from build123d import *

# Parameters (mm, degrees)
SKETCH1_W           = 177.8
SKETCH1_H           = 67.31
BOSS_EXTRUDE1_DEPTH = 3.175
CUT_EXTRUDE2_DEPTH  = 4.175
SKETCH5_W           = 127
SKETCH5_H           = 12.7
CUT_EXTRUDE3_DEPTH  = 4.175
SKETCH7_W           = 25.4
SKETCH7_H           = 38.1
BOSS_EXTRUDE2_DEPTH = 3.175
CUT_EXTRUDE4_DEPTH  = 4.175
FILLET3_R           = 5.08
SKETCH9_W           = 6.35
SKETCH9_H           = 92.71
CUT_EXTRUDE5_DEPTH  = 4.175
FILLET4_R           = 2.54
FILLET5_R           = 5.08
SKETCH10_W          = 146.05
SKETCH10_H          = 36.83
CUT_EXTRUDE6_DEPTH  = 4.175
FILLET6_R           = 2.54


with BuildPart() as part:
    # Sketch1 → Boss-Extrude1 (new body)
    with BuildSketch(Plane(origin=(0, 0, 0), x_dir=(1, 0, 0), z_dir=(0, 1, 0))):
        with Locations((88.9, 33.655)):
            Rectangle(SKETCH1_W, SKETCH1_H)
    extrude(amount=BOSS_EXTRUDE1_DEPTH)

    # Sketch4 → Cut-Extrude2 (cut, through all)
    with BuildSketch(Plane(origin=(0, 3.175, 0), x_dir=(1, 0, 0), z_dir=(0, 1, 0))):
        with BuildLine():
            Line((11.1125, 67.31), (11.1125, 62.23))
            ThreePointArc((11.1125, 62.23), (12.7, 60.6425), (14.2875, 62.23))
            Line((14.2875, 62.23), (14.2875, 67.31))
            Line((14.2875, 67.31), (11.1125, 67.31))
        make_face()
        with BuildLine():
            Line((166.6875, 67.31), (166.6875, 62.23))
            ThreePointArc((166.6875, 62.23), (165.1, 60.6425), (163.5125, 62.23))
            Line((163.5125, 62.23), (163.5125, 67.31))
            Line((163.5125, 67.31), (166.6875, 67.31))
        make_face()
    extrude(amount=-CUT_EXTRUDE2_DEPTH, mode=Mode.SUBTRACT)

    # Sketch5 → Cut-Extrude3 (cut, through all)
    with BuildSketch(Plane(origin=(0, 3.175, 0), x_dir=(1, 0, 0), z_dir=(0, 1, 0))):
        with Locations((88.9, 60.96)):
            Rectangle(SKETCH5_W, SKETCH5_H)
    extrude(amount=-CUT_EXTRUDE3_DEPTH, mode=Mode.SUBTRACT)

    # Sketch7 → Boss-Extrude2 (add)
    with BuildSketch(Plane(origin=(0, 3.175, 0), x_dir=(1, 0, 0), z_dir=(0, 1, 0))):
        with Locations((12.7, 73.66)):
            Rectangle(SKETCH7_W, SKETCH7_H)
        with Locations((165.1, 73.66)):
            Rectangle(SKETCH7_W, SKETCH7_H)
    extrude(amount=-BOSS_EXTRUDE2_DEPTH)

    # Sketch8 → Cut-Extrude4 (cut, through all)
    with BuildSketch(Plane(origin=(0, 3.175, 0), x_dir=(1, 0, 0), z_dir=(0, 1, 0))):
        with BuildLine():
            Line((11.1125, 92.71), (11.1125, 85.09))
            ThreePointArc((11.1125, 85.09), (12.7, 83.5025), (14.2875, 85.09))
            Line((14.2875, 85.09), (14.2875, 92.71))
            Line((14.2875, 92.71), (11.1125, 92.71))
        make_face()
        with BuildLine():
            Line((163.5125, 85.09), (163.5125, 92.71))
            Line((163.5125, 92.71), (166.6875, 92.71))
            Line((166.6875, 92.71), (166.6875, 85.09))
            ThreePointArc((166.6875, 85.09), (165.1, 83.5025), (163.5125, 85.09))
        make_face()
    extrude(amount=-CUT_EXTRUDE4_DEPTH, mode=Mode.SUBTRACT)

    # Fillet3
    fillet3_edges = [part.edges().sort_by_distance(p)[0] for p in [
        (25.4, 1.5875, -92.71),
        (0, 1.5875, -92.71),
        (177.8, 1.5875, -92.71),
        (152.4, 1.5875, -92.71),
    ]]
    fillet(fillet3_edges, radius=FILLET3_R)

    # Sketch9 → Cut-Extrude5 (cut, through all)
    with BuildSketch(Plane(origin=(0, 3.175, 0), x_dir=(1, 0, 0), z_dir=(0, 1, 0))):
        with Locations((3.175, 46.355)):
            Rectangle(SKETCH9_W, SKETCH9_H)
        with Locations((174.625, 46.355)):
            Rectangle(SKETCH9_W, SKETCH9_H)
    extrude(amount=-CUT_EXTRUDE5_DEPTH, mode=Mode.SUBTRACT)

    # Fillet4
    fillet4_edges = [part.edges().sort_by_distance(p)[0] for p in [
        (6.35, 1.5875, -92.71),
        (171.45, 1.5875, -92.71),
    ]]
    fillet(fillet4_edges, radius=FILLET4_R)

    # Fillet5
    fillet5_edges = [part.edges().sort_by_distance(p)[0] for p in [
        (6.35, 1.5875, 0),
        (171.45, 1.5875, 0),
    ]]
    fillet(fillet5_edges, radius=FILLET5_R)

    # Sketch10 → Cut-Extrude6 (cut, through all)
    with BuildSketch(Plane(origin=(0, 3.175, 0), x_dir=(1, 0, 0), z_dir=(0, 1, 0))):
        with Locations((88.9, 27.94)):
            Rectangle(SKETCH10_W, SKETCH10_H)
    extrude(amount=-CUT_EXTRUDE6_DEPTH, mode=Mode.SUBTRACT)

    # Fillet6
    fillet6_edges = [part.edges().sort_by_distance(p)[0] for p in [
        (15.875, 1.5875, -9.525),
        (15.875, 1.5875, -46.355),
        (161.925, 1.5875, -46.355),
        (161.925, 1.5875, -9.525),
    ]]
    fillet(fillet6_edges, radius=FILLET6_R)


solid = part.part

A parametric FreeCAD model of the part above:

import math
import FreeCAD as App
import Part
import Sketcher
from FreeCAD import Vector
Q = App.Units.Quantity


def edges_at(feature, points):
    """Names of the edges that pass closest to the given points."""
    edges = feature.Shape.Edges
    near = lambda p: min(range(len(edges)), key=lambda i: edges[i].distToShape(Part.Vertex(*p))[0])
    return sorted({f"Edge{near(p) + 1}" for p in points})

doc = App.newDocument("Part")
body = doc.addObject("PartDesign::Body", "Body")

# Sketch on XZ plane
sketch1 = body.newObject("Sketcher::SketchObject", "Sketch")
sketch1.AttachmentSupport = (doc.getObject("XZ_Plane"), [""])
sketch1.MapMode = "FlatFace"
sketch1.addGeometry([
    Part.LineSegment(Vector(0, -67, 0), Vector(0, 0, 0)),
    Part.LineSegment(Vector(0, 0, 0), Vector(178, 0, 0)),
    Part.LineSegment(Vector(178, 0, 0), Vector(178, -67, 0)),
    Part.LineSegment(Vector(178, -67, 0), Vector(0, -67, 0)),
], False)
sketch1.addConstraint([
    Sketcher.Constraint("Coincident", 0, 2, 1, 1),
    Sketcher.Constraint("Coincident", 1, 2, 2, 1),
    Sketcher.Constraint("Coincident", 2, 2, 3, 1),
    Sketcher.Constraint("Coincident", 3, 2, 0, 1),
    Sketcher.Constraint("Vertical", 0),
    Sketcher.Constraint("Horizontal", 1),
    Sketcher.Constraint("Vertical", 2),
    Sketcher.Constraint("Horizontal", 3),
    Sketcher.Constraint("Coincident", 0, 2, -1, 1),
    Sketcher.Constraint("DistanceX", 1, 1, 1, 2, Q("7 in")),
    Sketcher.Constraint("DistanceY", 0, 1, 0, 2, Q("2.65 in")),
])
pad1 = body.newObject("PartDesign::Pad", "Pad")
pad1.Profile = sketch1
pad1.Length = Q("0.125 in")
pad1.Reversed = True

# Sketch on XZ plane
sketch2 = body.newObject("Sketcher::SketchObject", "Sketch001")
sketch2.AttachmentSupport = (doc.getObject("XZ_Plane"), [""])
sketch2.MapMode = "FlatFace"
sketch2.AttachmentOffset = App.Placement(Vector(0, 0, -0.125 * 25.4), App.Rotation())
sketch2.addGeometry([
    Part.LineSegment(Vector(11.1, -67.3, 0), Vector(11.1, -62.2, 0)),  # 0
    Part.ArcOfCircle(Part.Circle(Vector(12.7, -62.2, 0), Vector(0, 0, 1), 1.6), math.radians(0), math.radians(180)),  # 1
    Part.LineSegment(Vector(14.3, -62.2, 0), Vector(14.3, -67.3, 0)),  # 2
    Part.LineSegment(Vector(14.3, -67.3, 0), Vector(11.1, -67.3, 0)),  # 3
    Part.LineSegment(Vector(166.7, -62.2, 0), Vector(166.7, -67.3, 0)),  # 4
    Part.LineSegment(Vector(166.7, -67.3, 0), Vector(163.5, -67.3, 0)),  # 5
    Part.LineSegment(Vector(163.5, -67.3, 0), Vector(163.5, -62.2, 0)),  # 6
    Part.ArcOfCircle(Part.Circle(Vector(165.1, -62.2, 0), Vector(0, 0, 1), 1.6), math.radians(0), math.radians(180)),  # 7
], False)
sketch2.addConstraint([
    Sketcher.Constraint("Tangent", 0, 2, 1, 2),
    Sketcher.Constraint("Tangent", 1, 1, 2, 1),
    Sketcher.Constraint("Coincident", 2, 2, 3, 1),
    Sketcher.Constraint("Coincident", 3, 2, 0, 1),
    Sketcher.Constraint("Coincident", 4, 2, 5, 1),
    Sketcher.Constraint("Coincident", 5, 2, 6, 1),
    Sketcher.Constraint("Tangent", 6, 2, 7, 2),
    Sketcher.Constraint("Tangent", 7, 1, 4, 1),
    Sketcher.Constraint("Vertical", 0),
    Sketcher.Constraint("Vertical", 2),
    Sketcher.Constraint("Horizontal", 3),
    Sketcher.Constraint("Vertical", 4),
    Sketcher.Constraint("Horizontal", 5),
    Sketcher.Constraint("Vertical", 6),
    Sketcher.Constraint("Equal", 1, 7),
    Sketcher.Constraint("Horizontal", 1, 3, 7, 3),
    Sketcher.Constraint("Horizontal", 3, 2, 4, 2),
    Sketcher.Constraint("DistanceY", 0, 1, 0, 2, Q("0.2 in")),
    Sketcher.Constraint("Radius", 1, Q("0.0625 in")),
    Sketcher.Constraint("DistanceX", 1, 3, 7, 3, Q("6 in")),
    Sketcher.Constraint("DistanceX", -1, 1, 1, 3, Q("0.5 in")),
    Sketcher.Constraint("DistanceY", 1, 3, -1, 1, Q("2.45 in")),
])
pocket1 = body.newObject("PartDesign::Pocket", "Pocket")
pocket1.Profile = sketch2
pocket1.Type = "ThroughAll"
pocket1.Reversed = True

# Sketch on XZ plane
sketch3 = body.newObject("Sketcher::SketchObject", "Sketch002")
sketch3.AttachmentSupport = (doc.getObject("XZ_Plane"), [""])
sketch3.MapMode = "FlatFace"
sketch3.AttachmentOffset = App.Placement(Vector(0, 0, -0.125 * 25.4), App.Rotation())
sketch3.addGeometry([
    Part.LineSegment(Vector(25, -67, 0), Vector(25, -55, 0)),
    Part.LineSegment(Vector(25, -55, 0), Vector(152, -55, 0)),
    Part.LineSegment(Vector(152, -55, 0), Vector(152, -67, 0)),
    Part.LineSegment(Vector(152, -67, 0), Vector(25, -67, 0)),
], False)
sketch3.addConstraint([
    Sketcher.Constraint("Coincident", 0, 2, 1, 1),
    Sketcher.Constraint("Coincident", 1, 2, 2, 1),
    Sketcher.Constraint("Coincident", 2, 2, 3, 1),
    Sketcher.Constraint("Coincident", 3, 2, 0, 1),
    Sketcher.Constraint("Vertical", 0),
    Sketcher.Constraint("Horizontal", 1),
    Sketcher.Constraint("Vertical", 2),
    Sketcher.Constraint("Horizontal", 3),
    Sketcher.Constraint("DistanceX", 1, 1, 1, 2, Q("5 in")),
    Sketcher.Constraint("DistanceY", 0, 1, 0, 2, Q("0.5 in")),
    Sketcher.Constraint("DistanceX", -1, 1, 0, 2, Q("1 in")),
    Sketcher.Constraint("DistanceY", 0, 2, -1, 1, Q("2.15 in")),
])
pocket2 = body.newObject("PartDesign::Pocket", "Pocket001")
pocket2.Profile = sketch3
pocket2.Type = "ThroughAll"
pocket2.Reversed = True

# Sketch on XZ plane
sketch4 = body.newObject("Sketcher::SketchObject", "Sketch003")
sketch4.AttachmentSupport = (doc.getObject("XZ_Plane"), [""])
sketch4.MapMode = "FlatFace"
sketch4.AttachmentOffset = App.Placement(Vector(0, 0, -0.125 * 25.4), App.Rotation())
sketch4.addGeometry([
    Part.LineSegment(Vector(0, -93, 0), Vector(0, -55, 0)),  # 0
    Part.LineSegment(Vector(0, -55, 0), Vector(25, -55, 0)),  # 1
    Part.LineSegment(Vector(25, -55, 0), Vector(25, -93, 0)),  # 2
    Part.LineSegment(Vector(25, -93, 0), Vector(0, -93, 0)),  # 3
    Part.LineSegment(Vector(152, -93, 0), Vector(152, -55, 0)),  # 4
    Part.LineSegment(Vector(152, -55, 0), Vector(178, -55, 0)),  # 5
    Part.LineSegment(Vector(178, -55, 0), Vector(178, -93, 0)),  # 6
    Part.LineSegment(Vector(178, -93, 0), Vector(152, -93, 0)),  # 7
], False)
sketch4.addConstraint([
    Sketcher.Constraint("Coincident", 0, 2, 1, 1),
    Sketcher.Constraint("Coincident", 1, 2, 2, 1),
    Sketcher.Constraint("Coincident", 2, 2, 3, 1),
    Sketcher.Constraint("Coincident", 3, 2, 0, 1),
    Sketcher.Constraint("Coincident", 4, 2, 5, 1),
    Sketcher.Constraint("Coincident", 5, 2, 6, 1),
    Sketcher.Constraint("Coincident", 6, 2, 7, 1),
    Sketcher.Constraint("Coincident", 7, 2, 4, 1),
    Sketcher.Constraint("Vertical", 0),
    Sketcher.Constraint("Horizontal", 1),
    Sketcher.Constraint("Vertical", 2),
    Sketcher.Constraint("Horizontal", 3),
    Sketcher.Constraint("Vertical", 4),
    Sketcher.Constraint("Horizontal", 5),
    Sketcher.Constraint("Vertical", 6),
    Sketcher.Constraint("Horizontal", 7),
    Sketcher.Constraint("PointOnObject", 0, 2, -2),
    Sketcher.Constraint("Horizontal", 1, 2, 4, 2),
    Sketcher.Constraint("Horizontal", 3, 2, 6, 2),
    Sketcher.Constraint("Equal", 3, 5),
    Sketcher.Constraint("DistanceX", 1, 1, 1, 2, Q("1 in")),
    Sketcher.Constraint("DistanceY", 0, 1, 0, 2, Q("1.5 in")),
    Sketcher.Constraint("DistanceX", -1, 1, 4, 2, Q("6 in")),
    Sketcher.Constraint("DistanceY", 0, 2, -1, 1, Q("2.15 in")),
])
pad2 = body.newObject("PartDesign::Pad", "Pad001")
pad2.Profile = sketch4
pad2.Length = Q("0.125 in")

# Sketch on XZ plane
sketch5 = body.newObject("Sketcher::SketchObject", "Sketch004")
sketch5.AttachmentSupport = (doc.getObject("XZ_Plane"), [""])
sketch5.MapMode = "FlatFace"
sketch5.AttachmentOffset = App.Placement(Vector(0, 0, -0.125 * 25.4), App.Rotation())
sketch5.addGeometry([
    Part.LineSegment(Vector(11.1, -92.7, 0), Vector(11.1, -85.1, 0)),  # 0
    Part.ArcOfCircle(Part.Circle(Vector(12.7, -85.1, 0), Vector(0, 0, 1), 1.6), math.radians(0), math.radians(180)),  # 1
    Part.LineSegment(Vector(14.3, -85.1, 0), Vector(14.3, -92.7, 0)),  # 2
    Part.LineSegment(Vector(14.3, -92.7, 0), Vector(11.1, -92.7, 0)),  # 3
    Part.LineSegment(Vector(163.5, -92.7, 0), Vector(163.5, -85.1, 0)),  # 4
    Part.ArcOfCircle(Part.Circle(Vector(165.1, -85.1, 0), Vector(0, 0, 1), 1.6), math.radians(0), math.radians(180)),  # 5
    Part.LineSegment(Vector(166.7, -85.1, 0), Vector(166.7, -92.7, 0)),  # 6
    Part.LineSegment(Vector(166.7, -92.7, 0), Vector(163.5, -92.7, 0)),  # 7
], False)
sketch5.addConstraint([
    Sketcher.Constraint("Tangent", 0, 2, 1, 2),
    Sketcher.Constraint("Tangent", 1, 1, 2, 1),
    Sketcher.Constraint("Coincident", 2, 2, 3, 1),
    Sketcher.Constraint("Coincident", 3, 2, 0, 1),
    Sketcher.Constraint("Tangent", 4, 2, 5, 2),
    Sketcher.Constraint("Tangent", 5, 1, 6, 1),
    Sketcher.Constraint("Coincident", 6, 2, 7, 1),
    Sketcher.Constraint("Coincident", 7, 2, 4, 1),
    Sketcher.Constraint("Vertical", 0),
    Sketcher.Constraint("Vertical", 2),
    Sketcher.Constraint("Horizontal", 3),
    Sketcher.Constraint("Vertical", 4),
    Sketcher.Constraint("Vertical", 6),
    Sketcher.Constraint("Horizontal", 7),
    Sketcher.Constraint("Equal", 1, 5),
    Sketcher.Constraint("Horizontal", 1, 3, 5, 3),
    Sketcher.Constraint("Horizontal", 3, 2, 6, 2),
    Sketcher.Constraint("DistanceY", 0, 1, 0, 2, Q("0.3 in")),
    Sketcher.Constraint("Radius", 1, Q("0.0625 in")),
    Sketcher.Constraint("DistanceX", 1, 3, 5, 3, Q("6 in")),
    Sketcher.Constraint("DistanceX", -1, 1, 1, 3, Q("0.5 in")),
    Sketcher.Constraint("DistanceY", 1, 3, -1, 1, Q("3.35 in")),
])
pocket3 = body.newObject("PartDesign::Pocket", "Pocket002")
pocket3.Profile = sketch5
pocket3.Type = "ThroughAll"
pocket3.Reversed = True
doc.recompute()

fillet = body.newObject("PartDesign::Fillet", "Fillet")
fillet.Base = (pocket3, edges_at(pocket3, [
    (25.4, 1.587, -92.71),
    (0, 1.587, -92.71),
    (177.8, 1.587, -92.71),
    (152.4, 1.587, -92.71),
]))
fillet.Radius = Q("0.2 in")

# Sketch on XZ plane
sketch6 = body.newObject("Sketcher::SketchObject", "Sketch005")
sketch6.AttachmentSupport = (doc.getObject("XZ_Plane"), [""])
sketch6.MapMode = "FlatFace"
sketch6.AttachmentOffset = App.Placement(Vector(0, 0, -0.125 * 25.4), App.Rotation())
sketch6.addGeometry([
    Part.LineSegment(Vector(0, -93, 0), Vector(0, 0, 0)),  # 0
    Part.LineSegment(Vector(0, 0, 0), Vector(6, 0, 0)),  # 1
    Part.LineSegment(Vector(6, 0, 0), Vector(6, -93, 0)),  # 2
    Part.LineSegment(Vector(6, -93, 0), Vector(0, -93, 0)),  # 3
    Part.LineSegment(Vector(171, -93, 0), Vector(171, 0, 0)),  # 4
    Part.LineSegment(Vector(171, 0, 0), Vector(178, 0, 0)),  # 5
    Part.LineSegment(Vector(178, 0, 0), Vector(178, -93, 0)),  # 6
    Part.LineSegment(Vector(178, -93, 0), Vector(171, -93, 0)),  # 7
], False)
sketch6.addConstraint([
    Sketcher.Constraint("Coincident", 0, 2, 1, 1),
    Sketcher.Constraint("Coincident", 1, 2, 2, 1),
    Sketcher.Constraint("Coincident", 2, 2, 3, 1),
    Sketcher.Constraint("Coincident", 3, 2, 0, 1),
    Sketcher.Constraint("Coincident", 4, 2, 5, 1),
    Sketcher.Constraint("Coincident", 5, 2, 6, 1),
    Sketcher.Constraint("Coincident", 6, 2, 7, 1),
    Sketcher.Constraint("Coincident", 7, 2, 4, 1),
    Sketcher.Constraint("Vertical", 0),
    Sketcher.Constraint("Horizontal", 1),
    Sketcher.Constraint("Vertical", 2),
    Sketcher.Constraint("Horizontal", 3),
    Sketcher.Constraint("Vertical", 4),
    Sketcher.Constraint("Horizontal", 5),
    Sketcher.Constraint("Vertical", 6),
    Sketcher.Constraint("Horizontal", 7),
    Sketcher.Constraint("Coincident", 0, 2, -1, 1),
    Sketcher.Constraint("PointOnObject", 4, 2, -1),
    Sketcher.Constraint("Horizontal", 3, 2, 6, 2),
    Sketcher.Constraint("Equal", 3, 5),
    Sketcher.Constraint("DistanceX", -1, 1, 5, 2, Q("7 in")),
    Sketcher.Constraint("DistanceX", 1, 1, 1, 2, Q("0.25 in")),
    Sketcher.Constraint("DistanceY", 0, 1, 0, 2, Q("3.65 in")),
])
pocket4 = body.newObject("PartDesign::Pocket", "Pocket003")
pocket4.Profile = sketch6
pocket4.Type = "ThroughAll"
pocket4.Reversed = True
doc.recompute()

fillet2 = body.newObject("PartDesign::Fillet", "Fillet001")
fillet2.Base = (pocket4, edges_at(pocket4, [(6.35, 1.587, -92.71), (171.45, 1.587, -92.71)]))
fillet2.Radius = Q("0.1 in")
doc.recompute()

fillet3 = body.newObject("PartDesign::Fillet", "Fillet002")
fillet3.Base = (fillet2, edges_at(fillet2, [(6.35, 1.587, 0), (171.45, 1.587, 0)]))
fillet3.Radius = Q("0.2 in")

# Sketch on XZ plane
sketch7 = body.newObject("Sketcher::SketchObject", "Sketch006")
sketch7.AttachmentSupport = (doc.getObject("XZ_Plane"), [""])
sketch7.MapMode = "FlatFace"
sketch7.AttachmentOffset = App.Placement(Vector(0, 0, -0.125 * 25.4), App.Rotation())
sketch7.addGeometry([
    Part.LineSegment(Vector(16, -46, 0), Vector(16, -10, 0)),
    Part.LineSegment(Vector(16, -10, 0), Vector(162, -10, 0)),
    Part.LineSegment(Vector(162, -10, 0), Vector(162, -46, 0)),
    Part.LineSegment(Vector(162, -46, 0), Vector(16, -46, 0)),
], False)
sketch7.addConstraint([
    Sketcher.Constraint("Coincident", 0, 2, 1, 1),
    Sketcher.Constraint("Coincident", 1, 2, 2, 1),
    Sketcher.Constraint("Coincident", 2, 2, 3, 1),
    Sketcher.Constraint("Coincident", 3, 2, 0, 1),
    Sketcher.Constraint("Vertical", 0),
    Sketcher.Constraint("Horizontal", 1),
    Sketcher.Constraint("Vertical", 2),
    Sketcher.Constraint("Horizontal", 3),
    Sketcher.Constraint("DistanceX", 1, 1, 1, 2, Q("5.75 in")),
    Sketcher.Constraint("DistanceY", 0, 1, 0, 2, Q("1.45 in")),
    Sketcher.Constraint("DistanceX", -1, 1, 0, 2, Q("0.625 in")),
    Sketcher.Constraint("DistanceY", 0, 2, -1, 1, Q("0.375 in")),
])
pocket5 = body.newObject("PartDesign::Pocket", "Pocket004")
pocket5.Profile = sketch7
pocket5.Type = "ThroughAll"
pocket5.Reversed = True
doc.recompute()

fillet4 = body.newObject("PartDesign::Fillet", "Fillet003")
fillet4.Base = (pocket5, edges_at(pocket5, [
    (15.875, 1.587, -9.525),
    (15.875, 1.587, -46.355),
    (161.925, 1.587, -46.355),
    (161.925, 1.587, -9.525),
]))
fillet4.Radius = Q("0.1 in")

doc.recompute()
